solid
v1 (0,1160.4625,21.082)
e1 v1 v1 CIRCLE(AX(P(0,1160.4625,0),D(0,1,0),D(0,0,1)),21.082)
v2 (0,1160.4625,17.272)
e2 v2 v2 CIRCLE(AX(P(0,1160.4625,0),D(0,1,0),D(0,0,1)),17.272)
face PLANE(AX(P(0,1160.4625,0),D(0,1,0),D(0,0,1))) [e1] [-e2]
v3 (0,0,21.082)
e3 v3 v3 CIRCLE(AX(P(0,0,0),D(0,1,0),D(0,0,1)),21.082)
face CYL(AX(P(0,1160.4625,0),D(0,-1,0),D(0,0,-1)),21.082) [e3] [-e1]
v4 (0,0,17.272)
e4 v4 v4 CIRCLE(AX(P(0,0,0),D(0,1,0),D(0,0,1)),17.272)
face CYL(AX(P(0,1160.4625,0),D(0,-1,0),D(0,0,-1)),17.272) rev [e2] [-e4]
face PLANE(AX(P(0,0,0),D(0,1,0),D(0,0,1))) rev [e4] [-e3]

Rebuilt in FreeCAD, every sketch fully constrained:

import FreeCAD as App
import Part
import Sketcher
Q = App.Units.Quantity

doc = App.newDocument("Part")
params = doc.addObject("Spreadsheet::Sheet", "Params")
for row, (alias, value) in enumerate([
    ("sketch1_diameter", "1.66 in"),
    ("sketch1_diameter2", "1.36 in"),
    ("pad1_length", "45.6875 in"),
], start=1):
    params.set(f"A{row}", alias)
    params.set(f"B{row}", "=" + value)
    params.setAlias(f"B{row}", alias)

body = doc.addObject("PartDesign::Body", "Body")

sketch1 = body.newObject("Sketcher::SketchObject", "Sketch")
sketch1.AttachmentSupport = (doc.getObject("XZ_Plane"), [""])
sketch1.MapMode = "FlatFace"
sketch1.addGeometry([
    Part.Circle(App.Vector(0, 0, 0), App.Vector(0, 0, 1), 21),
    Part.Circle(App.Vector(0, 0, 0), App.Vector(0, 0, 1), 17),
], False)
sketch1.addConstraint([
    Sketcher.Constraint("Coincident", 0, 3, -1, 1),
    Sketcher.Constraint("Coincident", 1, 3, -1, 1),
    Sketcher.Constraint("Diameter", 0, Q("1.66 in")),
    Sketcher.Constraint("Diameter", 1, Q("1.36 in")),
])
sketch1.setExpression("Constraints[2]", "Params.sketch1_diameter")
sketch1.setExpression("Constraints[3]", "Params.sketch1_diameter2")
pad1 = body.newObject("PartDesign::Pad", "Pad")
pad1.Profile = sketch1
pad1.setExpression("Length", "Params.pad1_length")
pad1.Reversed = True

doc.recompute()
